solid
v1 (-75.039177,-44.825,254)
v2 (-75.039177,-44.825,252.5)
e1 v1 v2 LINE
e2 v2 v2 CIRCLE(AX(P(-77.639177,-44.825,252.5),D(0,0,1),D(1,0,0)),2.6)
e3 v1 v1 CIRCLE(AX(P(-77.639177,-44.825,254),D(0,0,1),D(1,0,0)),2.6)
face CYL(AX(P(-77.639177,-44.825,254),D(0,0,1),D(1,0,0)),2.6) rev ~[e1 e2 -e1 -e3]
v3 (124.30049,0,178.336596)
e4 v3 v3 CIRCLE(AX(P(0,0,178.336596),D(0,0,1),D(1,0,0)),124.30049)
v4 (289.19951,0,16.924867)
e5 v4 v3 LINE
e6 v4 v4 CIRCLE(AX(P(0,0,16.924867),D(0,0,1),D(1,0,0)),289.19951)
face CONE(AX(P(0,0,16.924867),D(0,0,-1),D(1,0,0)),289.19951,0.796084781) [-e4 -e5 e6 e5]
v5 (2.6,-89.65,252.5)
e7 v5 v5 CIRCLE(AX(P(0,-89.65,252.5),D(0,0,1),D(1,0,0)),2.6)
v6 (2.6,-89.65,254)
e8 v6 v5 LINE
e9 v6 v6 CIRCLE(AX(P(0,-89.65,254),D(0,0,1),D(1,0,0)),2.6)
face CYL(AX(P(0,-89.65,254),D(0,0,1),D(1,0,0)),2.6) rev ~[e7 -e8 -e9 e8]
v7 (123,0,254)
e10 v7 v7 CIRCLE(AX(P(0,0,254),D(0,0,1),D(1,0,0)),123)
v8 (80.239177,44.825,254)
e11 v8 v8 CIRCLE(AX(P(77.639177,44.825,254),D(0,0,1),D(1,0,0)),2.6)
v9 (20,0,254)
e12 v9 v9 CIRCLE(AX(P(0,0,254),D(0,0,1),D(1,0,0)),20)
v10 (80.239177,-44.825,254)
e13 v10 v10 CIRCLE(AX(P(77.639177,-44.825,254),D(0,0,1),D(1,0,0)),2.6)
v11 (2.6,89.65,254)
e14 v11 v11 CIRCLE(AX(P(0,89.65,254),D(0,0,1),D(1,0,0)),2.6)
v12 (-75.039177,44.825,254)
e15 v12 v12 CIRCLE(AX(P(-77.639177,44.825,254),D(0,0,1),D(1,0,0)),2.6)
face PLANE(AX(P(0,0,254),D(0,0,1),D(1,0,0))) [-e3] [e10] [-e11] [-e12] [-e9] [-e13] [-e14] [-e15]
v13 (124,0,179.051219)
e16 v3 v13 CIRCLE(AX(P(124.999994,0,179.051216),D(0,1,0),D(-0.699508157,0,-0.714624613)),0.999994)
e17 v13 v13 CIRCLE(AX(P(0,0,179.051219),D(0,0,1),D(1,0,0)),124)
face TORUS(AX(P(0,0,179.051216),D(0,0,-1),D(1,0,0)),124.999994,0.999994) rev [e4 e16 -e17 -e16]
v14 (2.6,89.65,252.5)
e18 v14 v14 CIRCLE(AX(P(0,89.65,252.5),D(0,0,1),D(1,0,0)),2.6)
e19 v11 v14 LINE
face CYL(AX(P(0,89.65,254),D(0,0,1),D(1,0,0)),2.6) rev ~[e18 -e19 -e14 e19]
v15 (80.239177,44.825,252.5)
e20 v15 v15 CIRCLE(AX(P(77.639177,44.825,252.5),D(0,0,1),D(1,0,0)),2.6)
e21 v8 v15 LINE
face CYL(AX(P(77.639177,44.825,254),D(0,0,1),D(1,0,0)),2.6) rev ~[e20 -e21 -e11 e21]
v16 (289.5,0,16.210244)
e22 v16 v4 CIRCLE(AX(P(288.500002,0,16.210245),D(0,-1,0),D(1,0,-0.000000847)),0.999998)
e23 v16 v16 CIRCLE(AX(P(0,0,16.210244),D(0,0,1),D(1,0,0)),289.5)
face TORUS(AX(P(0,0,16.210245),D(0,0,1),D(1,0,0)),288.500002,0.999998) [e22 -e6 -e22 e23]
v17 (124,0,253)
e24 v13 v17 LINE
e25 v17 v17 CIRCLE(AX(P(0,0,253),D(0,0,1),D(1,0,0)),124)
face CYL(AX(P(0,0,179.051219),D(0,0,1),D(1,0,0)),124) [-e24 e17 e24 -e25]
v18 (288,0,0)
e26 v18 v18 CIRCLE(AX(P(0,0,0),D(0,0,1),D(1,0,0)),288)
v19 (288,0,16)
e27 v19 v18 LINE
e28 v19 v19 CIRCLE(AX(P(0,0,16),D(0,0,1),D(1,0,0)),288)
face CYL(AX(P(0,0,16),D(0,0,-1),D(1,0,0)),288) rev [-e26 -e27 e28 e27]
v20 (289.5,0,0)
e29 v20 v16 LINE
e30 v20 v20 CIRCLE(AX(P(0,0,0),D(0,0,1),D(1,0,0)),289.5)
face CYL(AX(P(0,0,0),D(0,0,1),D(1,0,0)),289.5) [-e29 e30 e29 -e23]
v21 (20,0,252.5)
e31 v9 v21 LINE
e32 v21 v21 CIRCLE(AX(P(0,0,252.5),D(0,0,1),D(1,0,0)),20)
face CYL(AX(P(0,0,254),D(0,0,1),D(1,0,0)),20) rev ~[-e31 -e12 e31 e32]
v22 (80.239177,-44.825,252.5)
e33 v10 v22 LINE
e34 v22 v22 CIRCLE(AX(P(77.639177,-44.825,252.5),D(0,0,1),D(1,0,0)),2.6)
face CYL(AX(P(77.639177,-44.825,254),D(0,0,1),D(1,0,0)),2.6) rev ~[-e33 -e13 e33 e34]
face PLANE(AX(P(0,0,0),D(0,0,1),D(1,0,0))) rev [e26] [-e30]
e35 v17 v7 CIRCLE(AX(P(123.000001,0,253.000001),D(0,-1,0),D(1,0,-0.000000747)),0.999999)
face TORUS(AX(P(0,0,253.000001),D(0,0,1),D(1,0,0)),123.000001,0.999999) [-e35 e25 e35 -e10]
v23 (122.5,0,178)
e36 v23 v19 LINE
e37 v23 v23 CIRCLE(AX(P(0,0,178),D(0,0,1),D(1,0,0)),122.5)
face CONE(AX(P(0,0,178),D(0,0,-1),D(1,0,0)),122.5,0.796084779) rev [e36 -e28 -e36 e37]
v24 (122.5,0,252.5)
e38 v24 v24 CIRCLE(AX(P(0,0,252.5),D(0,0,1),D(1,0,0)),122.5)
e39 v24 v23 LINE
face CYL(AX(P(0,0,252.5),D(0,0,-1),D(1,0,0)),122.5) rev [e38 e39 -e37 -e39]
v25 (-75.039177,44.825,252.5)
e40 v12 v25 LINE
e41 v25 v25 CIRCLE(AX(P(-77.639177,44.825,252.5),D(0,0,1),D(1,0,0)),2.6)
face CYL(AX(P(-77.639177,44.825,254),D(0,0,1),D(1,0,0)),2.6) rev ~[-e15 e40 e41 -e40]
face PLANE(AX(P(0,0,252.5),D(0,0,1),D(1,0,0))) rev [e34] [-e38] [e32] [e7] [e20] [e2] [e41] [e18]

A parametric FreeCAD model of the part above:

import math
import FreeCAD as App
import Part
import Sketcher

V = App.Vector

doc = App.newDocument("Part")
body = doc.addObject("PartDesign::Body", "Body")

sketch1 = body.newObject("Sketcher::SketchObject", "Sketch")
sketch1.AttachmentSupport = (doc.getObject("XZ_Plane"), [""])
sketch1.MapMode = "FlatFace"
sketch1.addGeometry([
    Part.LineSegment(V(288, 16, 0), V(288, 0, 0)),
    Part.LineSegment(V(288, 0, 0), V(289.5, 0, 0)),
    Part.LineSegment(V(289.5, 0, 0), V(289.5, 16.210244, 0)),
    Part.ArcOfCircle(Part.Circle(V(288.500002, 16.210245, 0), V(0, 0, 1), 0.999998), math.radians(-0.000049), math.radians(45.612333)),
    Part.LineSegment(V(289.19951, 16.924867, 0), V(124.30049, 178.336596, 0)),
    Part.ArcOfCircle(Part.Circle(V(124.999994, 179.051216, 0), V(0, 0, 1), 0.999994), math.radians(179.999841), math.radians(225.612443)),
    Part.LineSegment(V(124, 179.051219, 0), V(124, 253, 0)),
    Part.ArcOfCircle(Part.Circle(V(123.000001, 253.000001, 0), V(0, 0, 1), 0.999999), math.radians(-0.000043), math.radians(90.000043)),
    Part.LineSegment(V(123, 254, 0), V(0, 254, 0)),
    Part.LineSegment(V(0, 254, 0), V(0, 252.5, 0)),
    Part.LineSegment(V(0, 252.5, 0), V(122.5, 252.5, 0)),
    Part.LineSegment(V(122.5, 252.5, 0), V(122.5, 178, 0)),
    Part.LineSegment(V(122.5, 178, 0), V(288, 16, 0)),
], False)
sketch1.addConstraint([
    Sketcher.Constraint("Coincident", 0, 2, 1, 1),
    Sketcher.Constraint("Coincident", 1, 2, 2, 1),
    Sketcher.Constraint("Tangent", 2, 2, 3, 1),
    Sketcher.Constraint("Tangent", 3, 2, 4, 1),
    Sketcher.Constraint("Coincident", 4, 2, 5, 2),
    Sketcher.Constraint("Coincident", 5, 1, 6, 1),
    Sketcher.Constraint("Tangent", 6, 2, 7, 1),
    Sketcher.Constraint("Tangent", 7, 2, 8, 1),
    Sketcher.Constraint("Coincident", 8, 2, 9, 1),
    Sketcher.Constraint("Coincident", 9, 2, 10, 1),
    Sketcher.Constraint("Coincident", 10, 2, 11, 1),
    Sketcher.Constraint("Coincident", 11, 2, 12, 1),
    Sketcher.Constraint("Coincident", 12, 2, 0, 1),
    Sketcher.Constraint("Vertical", 0),
    Sketcher.Constraint("Horizontal", 1),
    Sketcher.Constraint("Vertical", 2),
    Sketcher.Constraint("Vertical", 6),
    Sketcher.Constraint("Horizontal", 8),
    Sketcher.Constraint("Vertical", 9),
    Sketcher.Constraint("Horizontal", 10),
    Sketcher.Constraint("Vertical", 11),
    Sketcher.Constraint("Equal", 3, 7),
    Sketcher.Constraint("PointOnObject", 0, 2, -1),
    Sketcher.Constraint("PointOnObject", 8, 2, -2),
    Sketcher.Constraint("Parallel", 4, 12),
    Sketcher.Constraint("Equal", 1, 9),
    Sketcher.Constraint("Radius", 3, 0.999998),
    Sketcher.Constraint("DistanceX", 8, 2, 8, 1, 123.0),
    Sketcher.Constraint("DistanceY", 0, 2, 0, 1, 16.0),
    Sketcher.Constraint("DistanceX", 1, 1, 1, 2, 1.5),
    Sketcher.Constraint("DistanceX", 10, 1, 10, 2, 122.5),
    Sketcher.Constraint("DistanceY", 11, 2, 11, 1, 74.5),
    Sketcher.Constraint("DistanceY", -1, 1, 7, 3, 253.000001),
    Sketcher.Constraint("DistanceX", -1, 1, 0, 2, 288.0),
    Sketcher.Constraint("Radius", 5, 0.999994),
    Sketcher.Constraint("DistanceY", 6, 1, 6, 2, 73.948781),
    Sketcher.Constraint("Distance", 4, 230.74972),
    Sketcher.Constraint("DistanceY", 2, 1, 2, 2, 16.210244),
])
revolution = body.newObject("PartDesign::Revolution", "Revolution")
revolution.Profile = sketch1
revolution.ReferenceAxis = (sketch1, ["V_Axis"])
revolution.Angle = 360

sketch2 = body.newObject("Sketcher::SketchObject", "Sketch001")
sketch2.AttachmentSupport = (doc.getObject("XY_Plane"), [""])
sketch2.MapMode = "FlatFace"
sketch2.AttachmentOffset = App.Placement(V(0, 0, 254), App.Rotation())
sketch2.addGeometry(Part.Circle(V(0, 0, 0), V(0, 0, 1), 5), False)
sketch2.addConstraint([
    Sketcher.Constraint("Coincident", 0, 3, -1, 1),
    Sketcher.Constraint("Diameter", 0, 10.0),
])
pocket1 = body.newObject("PartDesign::Pocket", "Pocket")
pocket1.Profile = sketch2
pocket1.Type = "ThroughAll"

sketch3 = body.newObject("Sketcher::SketchObject", "Sketch002")
sketch3.AttachmentSupport = (doc.getObject("XY_Plane"), [""])
sketch3.MapMode = "FlatFace"
sketch3.AttachmentOffset = App.Placement(V(0, 0, 254), App.Rotation())
sketch3.addGeometry(Part.Circle(V(0, 0, 0), V(0, 0, 1), 20), False)
sketch3.addConstraint([
    Sketcher.Constraint("Coincident", 0, 3, -1, 1),
    Sketcher.Constraint("Diameter", 0, 40.0),
])
pocket2 = body.newObject("PartDesign::Pocket", "Pocket001")
pocket2.Profile = sketch3
pocket2.Type = "ThroughAll"

sketch4 = body.newObject("Sketcher::SketchObject", "Sketch003")
sketch4.AttachmentSupport = (doc.getObject("XY_Plane"), [""])
sketch4.MapMode = "FlatFace"
sketch4.AttachmentOffset = App.Placement(V(0, 0, 254), App.Rotation())
sketch4.addGeometry([
    Part.Circle(V(0, 89.65, 0), V(0, 0, 1), 2.6),
    Part.Circle(V(-77.639177, 44.825, 0), V(0, 0, 1), 2.6),
    Part.Circle(V(-77.639177, -44.825, 0), V(0, 0, 1), 2.6),
    Part.Circle(V(0, -89.65, 0), V(0, 0, 1), 2.6),
    Part.Circle(V(77.639177, -44.825, 0), V(0, 0, 1), 2.6),
    Part.Circle(V(77.639177, 44.825, 0), V(0, 0, 1), 2.6),
], False)
sketch4.addConstraint([
    Sketcher.Constraint("Equal", 0, 1),
    Sketcher.Constraint("Equal", 1, 2),
    Sketcher.Constraint("Equal", 2, 3),
    Sketcher.Constraint("Equal", 3, 4),
    Sketcher.Constraint("Equal", 4, 5),
    Sketcher.Constraint("Symmetric", 0, 3, 3, 3, -1, 1),
    Sketcher.Constraint("Symmetric", 1, 3, 4, 3, -1, 1),
    Sketcher.Constraint("Symmetric", 2, 3, 5, 3, -1, 1),
    Sketcher.Constraint("Symmetric", 2, 3, 4, 3, -2),
    Sketcher.Constraint("PointOnObject", 0, 3, -2),
    Sketcher.Constraint("Diameter", 0, 5.2),
    Sketcher.Constraint("DistanceY", 3, 3, 0, 3, 179.3),
    Sketcher.Constraint("DistanceY", 2, 3, 1, 3, 89.65),
    Sketcher.Constraint("DistanceX", 1, 3, -1, 1, 77.639177),
])
pocket3 = body.newObject("PartDesign::Pocket", "Pocket002")
pocket3.Profile = sketch4
pocket3.Type = "ThroughAll"

doc.recompute()
